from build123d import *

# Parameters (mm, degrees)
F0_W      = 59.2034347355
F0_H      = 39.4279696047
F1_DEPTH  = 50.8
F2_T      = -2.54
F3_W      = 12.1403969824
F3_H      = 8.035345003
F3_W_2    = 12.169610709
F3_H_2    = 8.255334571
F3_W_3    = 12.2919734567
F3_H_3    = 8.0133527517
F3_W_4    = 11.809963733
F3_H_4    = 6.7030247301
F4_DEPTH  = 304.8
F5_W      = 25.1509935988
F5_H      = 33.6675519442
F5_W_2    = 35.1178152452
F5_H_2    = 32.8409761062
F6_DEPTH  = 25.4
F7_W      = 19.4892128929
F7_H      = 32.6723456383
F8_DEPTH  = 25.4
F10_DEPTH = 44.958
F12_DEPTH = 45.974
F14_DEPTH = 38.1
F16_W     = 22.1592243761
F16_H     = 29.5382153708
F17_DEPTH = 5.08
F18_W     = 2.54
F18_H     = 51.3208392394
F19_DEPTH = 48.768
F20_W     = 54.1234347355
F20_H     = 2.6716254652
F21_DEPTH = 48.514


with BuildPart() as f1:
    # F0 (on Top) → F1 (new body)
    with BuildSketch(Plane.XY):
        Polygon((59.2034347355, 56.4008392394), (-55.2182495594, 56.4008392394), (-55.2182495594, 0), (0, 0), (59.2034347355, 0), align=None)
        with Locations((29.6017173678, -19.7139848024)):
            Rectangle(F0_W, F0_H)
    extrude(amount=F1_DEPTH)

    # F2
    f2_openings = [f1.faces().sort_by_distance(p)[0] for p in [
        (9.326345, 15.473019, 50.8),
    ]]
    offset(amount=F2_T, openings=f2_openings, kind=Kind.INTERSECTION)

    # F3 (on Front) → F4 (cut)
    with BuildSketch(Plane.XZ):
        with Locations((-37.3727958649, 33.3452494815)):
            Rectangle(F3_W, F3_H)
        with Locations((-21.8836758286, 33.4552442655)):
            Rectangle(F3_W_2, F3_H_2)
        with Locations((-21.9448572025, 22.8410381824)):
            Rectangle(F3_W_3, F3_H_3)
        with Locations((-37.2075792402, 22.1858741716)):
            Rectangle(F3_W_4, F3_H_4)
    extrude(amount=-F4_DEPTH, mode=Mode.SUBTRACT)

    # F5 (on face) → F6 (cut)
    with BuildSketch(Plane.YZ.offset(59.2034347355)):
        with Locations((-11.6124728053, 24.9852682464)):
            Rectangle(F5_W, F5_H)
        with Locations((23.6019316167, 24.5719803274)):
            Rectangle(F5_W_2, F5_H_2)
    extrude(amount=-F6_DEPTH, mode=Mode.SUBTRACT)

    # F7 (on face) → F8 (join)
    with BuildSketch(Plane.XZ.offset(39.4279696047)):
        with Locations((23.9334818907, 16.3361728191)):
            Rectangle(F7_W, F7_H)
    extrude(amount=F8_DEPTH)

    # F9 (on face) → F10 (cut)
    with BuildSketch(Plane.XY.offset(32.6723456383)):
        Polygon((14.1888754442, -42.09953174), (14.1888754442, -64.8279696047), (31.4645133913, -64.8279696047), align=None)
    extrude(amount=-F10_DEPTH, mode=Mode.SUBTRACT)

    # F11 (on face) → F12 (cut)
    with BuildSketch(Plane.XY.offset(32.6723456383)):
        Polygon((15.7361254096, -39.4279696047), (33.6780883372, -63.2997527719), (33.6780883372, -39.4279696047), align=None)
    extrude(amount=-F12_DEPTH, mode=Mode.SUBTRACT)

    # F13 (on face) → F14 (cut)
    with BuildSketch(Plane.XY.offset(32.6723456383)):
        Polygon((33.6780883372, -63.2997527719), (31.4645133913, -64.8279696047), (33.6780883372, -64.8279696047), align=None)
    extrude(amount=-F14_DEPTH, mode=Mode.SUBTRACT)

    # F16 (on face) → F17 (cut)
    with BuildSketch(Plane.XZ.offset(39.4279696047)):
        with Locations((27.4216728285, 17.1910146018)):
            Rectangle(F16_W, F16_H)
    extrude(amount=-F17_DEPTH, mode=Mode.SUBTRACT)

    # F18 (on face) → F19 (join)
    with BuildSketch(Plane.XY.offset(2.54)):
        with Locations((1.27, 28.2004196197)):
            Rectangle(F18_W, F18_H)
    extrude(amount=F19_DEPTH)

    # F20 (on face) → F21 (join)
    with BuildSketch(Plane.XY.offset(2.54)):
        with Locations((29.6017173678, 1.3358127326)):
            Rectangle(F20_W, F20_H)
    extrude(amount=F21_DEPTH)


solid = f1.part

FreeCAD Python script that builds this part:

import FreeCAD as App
import Part
import Sketcher

V = App.Vector
Q = App.Units.Quantity


def faces_at(feature, points):
    """Names of the faces that lie closest to the given points."""
    faces = feature.Shape.Faces
    near = lambda p: min(range(len(faces)), key=lambda i: faces[i].distToShape(Part.Vertex(*p))[0])
    return sorted({f"Face{near(p) + 1}" for p in points})

doc = App.newDocument("Part")
body = doc.addObject("PartDesign::Body", "Body")

sketch1 = doc.addObject("Sketcher::SketchObject", "Sketch")
body.addObject(sketch1)
sketch1.AttachmentSupport = (doc.XY_Plane, [""])
sketch1.MapMode = "FlatFace"
sketch1.addGeometry([
    Part.LineSegment(V(59.203435, 56.400839, 0), V(-55.21825, 56.400839, 0)),
    Part.LineSegment(V(-55.21825, 56.400839, 0), V(-55.21825, 0, 0)),
    Part.LineSegment(V(-55.21825, 0, 0), V(0, 0, 0)),
    Part.LineSegment(V(0, 0, 0), V(0, -39.42797, 0)),
    Part.LineSegment(V(0, -39.42797, 0), V(59.203435, -39.42797, 0)),
    Part.LineSegment(V(59.203435, -39.42797, 0), V(59.203435, 56.400839, 0)),
], False)
sketch1.addConstraint([
    Sketcher.Constraint("Coincident", 0, 2, 1, 1),
    Sketcher.Constraint("Coincident", 1, 2, 2, 1),
    Sketcher.Constraint("Coincident", 2, 2, 3, 1),
    Sketcher.Constraint("Coincident", 3, 2, 4, 1),
    Sketcher.Constraint("Coincident", 4, 2, 5, 1),
    Sketcher.Constraint("Coincident", 5, 2, 0, 1),
    Sketcher.Constraint("Horizontal", 0),
    Sketcher.Constraint("Vertical", 1),
    Sketcher.Constraint("Horizontal", 2),
    Sketcher.Constraint("Vertical", 3),
    Sketcher.Constraint("Horizontal", 4),
    Sketcher.Constraint("Vertical", 5),
    Sketcher.Constraint("Coincident", 2, 2, -1, 1),
    Sketcher.Constraint("DistanceX", 2, 1, 2, 2, 55.21825),
    Sketcher.Constraint("DistanceY", 1, 2, 1, 1, 56.400839),
    Sketcher.Constraint("DistanceY", 3, 2, 3, 1, 39.42797),
    Sketcher.Constraint("DistanceX", 0, 2, 0, 1, 114.421684),
])
pad1 = doc.addObject("PartDesign::Pad", "Pad")
body.addObject(pad1)
pad1.Profile = sketch1
pad1.Length = Q("2 in")
doc.recompute()

thickness = doc.addObject("PartDesign::Thickness", "Thickness")
body.addObject(thickness)
thickness.Base = (pad1, faces_at(pad1, [(1.993, 8.486, 50.8)]))
thickness.Value = Q("0.1 in")
thickness.Reversed = True
thickness.Join = "Intersection"

sketch2 = doc.addObject("Sketcher::SketchObject", "Sketch001")
body.addObject(sketch2)
sketch2.AttachmentSupport = (doc.XZ_Plane, [""])
sketch2.MapMode = "FlatFace"
sketch2.addGeometry([
    Part.LineSegment(V(-43.442994, 37.362922, 0), V(-43.442994, 29.327577, 0)),
    Part.LineSegment(V(-43.442994, 29.327577, 0), V(-31.302597, 29.327577, 0)),
    Part.LineSegment(V(-31.302597, 29.327577, 0), V(-31.302597, 37.362922, 0)),
    Part.LineSegment(V(-31.302597, 37.362922, 0), V(-43.442994, 37.362922, 0)),
    Part.LineSegment(V(-27.968481, 37.582912, 0), V(-27.968481, 29.327577, 0)),
    Part.LineSegment(V(-27.968481, 29.327577, 0), V(-15.79887, 29.327577, 0)),
    Part.LineSegment(V(-15.79887, 29.327577, 0), V(-15.79887, 37.582912, 0)),
    Part.LineSegment(V(-15.79887, 37.582912, 0), V(-27.968481, 37.582912, 0)),
    Part.LineSegment(V(-28.090844, 26.847715, 0), V(-28.090844, 18.834362, 0)),
    Part.LineSegment(V(-28.090844, 18.834362, 0), V(-15.79887, 18.834362, 0)),
    Part.LineSegment(V(-15.79887, 18.834362, 0), V(-15.79887, 26.847715, 0)),
    Part.LineSegment(V(-15.79887, 26.847715, 0), V(-28.090844, 26.847715, 0)),
    Part.LineSegment(V(-43.112561, 25.537387, 0), V(-43.112561, 18.834362, 0)),
    Part.LineSegment(V(-43.112561, 18.834362, 0), V(-31.302597, 18.834362, 0)),
    Part.LineSegment(V(-31.302597, 18.834362, 0), V(-31.302597, 25.537387, 0)),
    Part.LineSegment(V(-31.302597, 25.537387, 0), V(-43.112561, 25.537387, 0)),
], False)
sketch2.addConstraint([
    Sketcher.Constraint("Coincident", 0, 2, 1, 1),
    Sketcher.Constraint("Coincident", 1, 2, 2, 1),
    Sketcher.Constraint("Coincident", 2, 2, 3, 1),
    Sketcher.Constraint("Coincident", 3, 2, 0, 1),
    Sketcher.Constraint("Coincident", 4, 2, 5, 1),
    Sketcher.Constraint("Coincident", 5, 2, 6, 1),
    Sketcher.Constraint("Coincident", 6, 2, 7, 1),
    Sketcher.Constraint("Coincident", 7, 2, 4, 1),
    Sketcher.Constraint("Coincident", 8, 2, 9, 1),
    Sketcher.Constraint("Coincident", 9, 2, 10, 1),
    Sketcher.Constraint("Coincident", 10, 2, 11, 1),
    Sketcher.Constraint("Coincident", 11, 2, 8, 1),
    Sketcher.Constraint("Coincident", 12, 2, 13, 1),
    Sketcher.Constraint("Coincident", 13, 2, 14, 1),
    Sketcher.Constraint("Coincident", 14, 2, 15, 1),
    Sketcher.Constraint("Coincident", 15, 2, 12, 1),
    Sketcher.Constraint("Vertical", 0),
    Sketcher.Constraint("Horizontal", 1),
    Sketcher.Constraint("Vertical", 2),
    Sketcher.Constraint("Horizontal", 3),
    Sketcher.Constraint("Vertical", 4),
    Sketcher.Constraint("Horizontal", 5),
    Sketcher.Constraint("Vertical", 6),
    Sketcher.Constraint("Horizontal", 7),
    Sketcher.Constraint("Vertical", 8),
    Sketcher.Constraint("Horizontal", 9),
    Sketcher.Constraint("Vertical", 10),
    Sketcher.Constraint("Horizontal", 11),
    Sketcher.Constraint("Vertical", 12),
    Sketcher.Constraint("Horizontal", 13),
    Sketcher.Constraint("Vertical", 14),
    Sketcher.Constraint("Horizontal", 15),
    Sketcher.Constraint("Horizontal", 1, 2, 4, 2),
    Sketcher.Constraint("Horizontal", 9, 2, 12, 2),
    Sketcher.Constraint("Vertical", 6, 2, 9, 2),
    Sketcher.Constraint("Vertical", 2, 2, 13, 2),
    Sketcher.Constraint("DistanceX", 5, 1, 5, 2, 12.169611),
    Sketcher.Constraint("DistanceX", 1, 1, 1, 2, 12.140397),
    Sketcher.Constraint("DistanceX", 9, 1, 9, 2, 12.291973),
    Sketcher.Constraint("DistanceX", 13, 1, 13, 2, 11.809964),
    Sketcher.Constraint("DistanceY", 0, 2, 0, 1, 8.035345),
    Sketcher.Constraint("DistanceY", 4, 2, 4, 1, 8.255335),
    Sketcher.Constraint("DistanceY", 8, 2, 8, 1, 8.013353),
    Sketcher.Constraint("DistanceY", 12, 2, 12, 1, 6.703025),
    Sketcher.Constraint("DistanceY", -1, 1, 2, 2, 37.362922),
    Sketcher.Constraint("DistanceX", 4, 2, -1, 1, 27.968481),
    Sketcher.Constraint("DistanceY", -1, 1, 8, 2, 18.834362),
    Sketcher.Constraint("DistanceX", 12, 2, -1, 1, 43.112561),
])
pocket1 = doc.addObject("PartDesign::Pocket", "Pocket")
body.addObject(pocket1)
pocket1.Profile = sketch2
pocket1.Length = Q("12 in")

sketch3 = doc.addObject("Sketcher::SketchObject", "Sketch002")
body.addObject(sketch3)
sketch3.AttachmentSupport = (doc.YZ_Plane, [""])
sketch3.MapMode = "FlatFace"
sketch3.AttachmentOffset = App.Placement(V(0, 0, 59.203435), App.Rotation())
sketch3.addGeometry([
    Part.LineSegment(V(-24.18797, 41.819044, 0), V(-24.18797, 8.151492, 0)),
    Part.LineSegment(V(-24.18797, 8.151492, 0), V(0.963024, 8.151492, 0)),
    Part.LineSegment(V(0.963024, 8.151492, 0), V(0.963024, 41.819044, 0)),
    Part.LineSegment(V(0.963024, 41.819044, 0), V(-24.18797, 41.819044, 0)),
    Part.LineSegment(V(6.043024, 40.992468, 0), V(6.043024, 8.151492, 0)),
    Part.LineSegment(V(6.043024, 8.151492, 0), V(41.160839, 8.151492, 0)),
    Part.LineSegment(V(41.160839, 8.151492, 0), V(41.160839, 40.992468, 0)),
    Part.LineSegment(V(41.160839, 40.992468, 0), V(6.043024, 40.992468, 0)),
], False)
sketch3.addConstraint([
    Sketcher.Constraint("Coincident", 0, 2, 1, 1),
    Sketcher.Constraint("Coincident", 1, 2, 2, 1),
    Sketcher.Constraint("Coincident", 2, 2, 3, 1),
    Sketcher.Constraint("Coincident", 3, 2, 0, 1),
    Sketcher.Constraint("Coincident", 4, 2, 5, 1),
    Sketcher.Constraint("Coincident", 5, 2, 6, 1),
    Sketcher.Constraint("Coincident", 6, 2, 7, 1),
    Sketcher.Constraint("Coincident", 7, 2, 4, 1),
    Sketcher.Constraint("Vertical", 0),
    Sketcher.Constraint("Horizontal", 1),
    Sketcher.Constraint("Vertical", 2),
    Sketcher.Constraint("Horizontal", 3),
    Sketcher.Constraint("Vertical", 4),
    Sketcher.Constraint("Horizontal", 5),
    Sketcher.Constraint("Vertical", 6),
    Sketcher.Constraint("Horizontal", 7),
    Sketcher.Constraint("Horizontal", 1, 2, 4, 2),
    Sketcher.Constraint("DistanceX", 1, 2, 4, 2, Q("0.2 in")),
    Sketcher.Constraint("DistanceY", 0, 2, 0, 1, 33.667552),
    Sketcher.Constraint("DistanceX", 1, 1, 1, 2, 25.150994),
    Sketcher.Constraint("DistanceX", 5, 1, 5, 2, 35.117815),
    Sketcher.Constraint("DistanceY", 4, 2, 4, 1, 32.840976),
    Sketcher.Constraint("DistanceX", 0, 2, -1, 1, 24.18797),
    Sketcher.Constraint("DistanceY", -1, 1, 6, 2, 40.992468),
])
pocket2 = doc.addObject("PartDesign::Pocket", "Pocket001")
body.addObject(pocket2)
pocket2.Profile = sketch3
pocket2.Length = Q("1 in")

sketch4 = doc.addObject("Sketcher::SketchObject", "Sketch003")
body.addObject(sketch4)
sketch4.AttachmentSupport = (doc.XZ_Plane, [""])
sketch4.MapMode = "FlatFace"
sketch4.AttachmentOffset = App.Placement(V(0, 0, 39.42797), App.Rotation())
sketch4.addGeometry([
    Part.LineSegment(V(14.188875, 32.672346, 0), V(14.188875, 0, 0)),
    Part.LineSegment(V(14.188875, 0, 0), V(33.678088, 0, 0)),
    Part.LineSegment(V(33.678088, 0, 0), V(33.678088, 32.672346, 0)),
    Part.LineSegment(V(33.678088, 32.672346, 0), V(14.188875, 32.672346, 0)),
], False)
sketch4.addConstraint([
    Sketcher.Constraint("Coincident", 0, 2, 1, 1),
    Sketcher.Constraint("Coincident", 1, 2, 2, 1),
    Sketcher.Constraint("Coincident", 2, 2, 3, 1),
    Sketcher.Constraint("Coincident", 3, 2, 0, 1),
    Sketcher.Constraint("Vertical", 0),
    Sketcher.Constraint("Horizontal", 1),
    Sketcher.Constraint("Vertical", 2),
    Sketcher.Constraint("Horizontal", 3),
    Sketcher.Constraint("PointOnObject", 0, 2, -1),
    Sketcher.Constraint("DistanceX", 1, 1, 1, 2, 19.489213),
    Sketcher.Constraint("DistanceY", 0, 2, 0, 1, 32.672346),
    Sketcher.Constraint("DistanceX", -1, 1, 1, 2, 33.678088),
])
pad2 = doc.addObject("PartDesign::Pad", "Pad001")
body.addObject(pad2)
pad2.Profile = sketch4
pad2.Length = Q("1 in")

sketch5 = doc.addObject("Sketcher::SketchObject", "Sketch004")
body.addObject(sketch5)
sketch5.AttachmentSupport = (doc.XY_Plane, [""])
sketch5.MapMode = "FlatFace"
sketch5.AttachmentOffset = App.Placement(V(0, 0, 32.672346), App.Rotation())
sketch5.addGeometry([
    Part.LineSegment(V(14.188875, -42.099532, 0), V(14.188875, -64.82797, 0)),
    Part.LineSegment(V(14.188875, -64.82797, 0), V(31.464513, -64.82797, 0)),
    Part.LineSegment(V(31.464513, -64.82797, 0), V(14.188875, -42.099532, 0)),
], False)
sketch5.addConstraint([
    Sketcher.Constraint("Coincident", 0, 2, 1, 1),
    Sketcher.Constraint("Coincident", 1, 2, 2, 1),
    Sketcher.Constraint("Coincident", 2, 2, 0, 1),
    Sketcher.Constraint("Vertical", 0),
    Sketcher.Constraint("Horizontal", 1),
    Sketcher.Constraint("DistanceX", 1, 1, 1, 2, 17.275638),
    Sketcher.Constraint("DistanceY", 0, 2, 0, 1, 22.728438),
    Sketcher.Constraint("DistanceY", 0, 2, -1, 1, 64.82797),
    Sketcher.Constraint("DistanceX", -1, 1, 0, 2, 14.188875),
])
pocket3 = doc.addObject("PartDesign::Pocket", "Pocket002")
body.addObject(pocket3)
pocket3.Profile = sketch5
pocket3.Length = Q("1.77 in")

sketch6 = doc.addObject("Sketcher::SketchObject", "Sketch005")
body.addObject(sketch6)
sketch6.AttachmentSupport = (doc.XY_Plane, [""])
sketch6.MapMode = "FlatFace"
sketch6.AttachmentOffset = App.Placement(V(0, 0, 32.672346), App.Rotation())
sketch6.addGeometry([
    Part.LineSegment(V(15.736125, -39.42797, 0), V(33.678088, -63.299753, 0)),
    Part.LineSegment(V(33.678088, -63.299753, 0), V(33.678088, -39.42797, 0)),
    Part.LineSegment(V(33.678088, -39.42797, 0), V(15.736125, -39.42797, 0)),
], False)
sketch6.addConstraint([
    Sketcher.Constraint("Coincident", 0, 2, 1, 1),
    Sketcher.Constraint("Coincident", 1, 2, 2, 1),
    Sketcher.Constraint("Coincident", 2, 2, 0, 1),
    Sketcher.Constraint("Vertical", 1),
    Sketcher.Constraint("Horizontal", 2),
    Sketcher.Constraint("Distance", 0, 29.86262),
    Sketcher.Constraint("DistanceX", 2, 2, 2, 1, 17.941963),
    Sketcher.Constraint("DistanceX", -1, 1, 0, 2, 33.678088),
    Sketcher.Constraint("DistanceY", 1, 2, -1, 1, 39.42797),
])
pocket4 = doc.addObject("PartDesign::Pocket", "Pocket003")
body.addObject(pocket4)
pocket4.Profile = sketch6
pocket4.Length = Q("1.81 in")

sketch7 = doc.addObject("Sketcher::SketchObject", "Sketch006")
body.addObject(sketch7)
sketch7.AttachmentSupport = (doc.XY_Plane, [""])
sketch7.MapMode = "FlatFace"
sketch7.AttachmentOffset = App.Placement(V(0, 0, 32.672346), App.Rotation())
sketch7.addGeometry([
    Part.LineSegment(V(33.678088, -63.299753, 0), V(31.464513, -64.82797, 0)),
    Part.LineSegment(V(31.464513, -64.82797, 0), V(33.678088, -64.82797, 0)),
    Part.LineSegment(V(33.678088, -64.82797, 0), V(33.678088, -63.299753, 0)),
], False)
sketch7.addConstraint([
    Sketcher.Constraint("Coincident", 0, 2, 1, 1),
    Sketcher.Constraint("Coincident", 1, 2, 2, 1),
    Sketcher.Constraint("Coincident", 2, 2, 0, 1),
    Sketcher.Constraint("Horizontal", 1),
    Sketcher.Constraint("Vertical", 2),
    Sketcher.Constraint("Distance", 0, Q("0.1059001 in")),
    Sketcher.Constraint("DistanceX", 1, 1, 1, 2, 2.213575),
    Sketcher.Constraint("DistanceY", 0, 2, -1, 1, 64.82797),
    Sketcher.Constraint("DistanceX", -1, 1, 1, 2, 33.678088),
])
pocket5 = doc.addObject("PartDesign::Pocket", "Pocket004")
body.addObject(pocket5)
pocket5.Profile = sketch7
pocket5.Length = Q("1.5 in")

sketch8 = doc.addObject("Sketcher::SketchObject", "Sketch007")
body.addObject(sketch8)
sketch8.AttachmentSupport = (doc.XZ_Plane, [""])
sketch8.MapMode = "FlatFace"
sketch8.AttachmentOffset = App.Placement(V(0, 0, 39.42797), App.Rotation())
sketch8.addGeometry([
    Part.LineSegment(V(16.342061, 31.960122, 0), V(16.342061, 2.421907, 0)),
    Part.LineSegment(V(16.342061, 2.421907, 0), V(38.501285, 2.421907, 0)),
    Part.LineSegment(V(38.501285, 2.421907, 0), V(38.501285, 31.960122, 0)),
    Part.LineSegment(V(38.501285, 31.960122, 0), V(16.342061, 31.960122, 0)),
], False)
sketch8.addConstraint([
    Sketcher.Constraint("Coincident", 0, 2, 1, 1),
    Sketcher.Constraint("Coincident", 1, 2, 2, 1),
    Sketcher.Constraint("Coincident", 2, 2, 3, 1),
    Sketcher.Constraint("Coincident", 3, 2, 0, 1),
    Sketcher.Constraint("Vertical", 0),
    Sketcher.Constraint("Horizontal", 1),
    Sketcher.Constraint("Vertical", 2),
    Sketcher.Constraint("Horizontal", 3),
    Sketcher.Constraint("DistanceX", 1, 1, 1, 2, 22.159224),
    Sketcher.Constraint("DistanceY", 0, 2, 0, 1, 29.538215),
    Sketcher.Constraint("DistanceX", -1, 1, 0, 2, 16.342061),
    Sketcher.Constraint("DistanceY", -1, 1, 0, 2, 2.421907),
])
pocket6 = doc.addObject("PartDesign::Pocket", "Pocket005")
body.addObject(pocket6)
pocket6.Profile = sketch8
pocket6.Length = Q("0.2 in")

sketch9 = doc.addObject("Sketcher::SketchObject", "Sketch008")
body.addObject(sketch9)
sketch9.AttachmentSupport = (doc.XY_Plane, [""])
sketch9.MapMode = "FlatFace"
sketch9.AttachmentOffset = App.Placement(V(0, 0, 0.1 * 25.4), App.Rotation())
sketch9.addGeometry([
    Part.LineSegment(V(0, 53.860839, 0), V(0, 2.54, 0)),
    Part.LineSegment(V(0, 2.54, 0), V(2.54, 2.54, 0)),
    Part.LineSegment(V(2.54, 2.54, 0), V(2.54, 53.860839, 0)),
    Part.LineSegment(V(2.54, 53.860839, 0), V(0, 53.860839, 0)),
], False)
sketch9.addConstraint([
    Sketcher.Constraint("Coincident", 0, 2, 1, 1),
    Sketcher.Constraint("Coincident", 1, 2, 2, 1),
    Sketcher.Constraint("Coincident", 2, 2, 3, 1),
    Sketcher.Constraint("Coincident", 3, 2, 0, 1),
    Sketcher.Constraint("Vertical", 0),
    Sketcher.Constraint("Horizontal", 1),
    Sketcher.Constraint("Vertical", 2),
    Sketcher.Constraint("Horizontal", 3),
    Sketcher.Constraint("PointOnObject", 0, 2, -2),
    Sketcher.Constraint("DistanceX", 1, 1, 1, 2, Q("0.1 in")),
    Sketcher.Constraint("DistanceY", -1, 1, 0, 2, Q("0.1 in")),
    Sketcher.Constraint("DistanceY", 0, 2, 0, 1, 51.320839),
])
pad3 = doc.addObject("PartDesign::Pad", "Pad002")
body.addObject(pad3)
pad3.Profile = sketch9
pad3.Length = Q("1.92 in")

sketch10 = doc.addObject("Sketcher::SketchObject", "Sketch009")
body.addObject(sketch10)
sketch10.AttachmentSupport = (doc.XY_Plane, [""])
sketch10.MapMode = "FlatFace"
sketch10.AttachmentOffset = App.Placement(V(0, 0, 0.1 * 25.4), App.Rotation())
sketch10.addGeometry([
    Part.LineSegment(V(2.54, 2.671625, 0), V(2.54, 0, 0)),
    Part.LineSegment(V(2.54, 0, 0), V(56.663435, 0, 0)),
    Part.LineSegment(V(56.663435, 0, 0), V(56.663435, 2.671625, 0)),
    Part.LineSegment(V(56.663435, 2.671625, 0), V(2.54, 2.671625, 0)),
], False)
sketch10.addConstraint([
    Sketcher.Constraint("Coincident", 0, 2, 1, 1),
    Sketcher.Constraint("Coincident", 1, 2, 2, 1),
    Sketcher.Constraint("Coincident", 2, 2, 3, 1),
    Sketcher.Constraint("Coincident", 3, 2, 0, 1),
    Sketcher.Constraint("Vertical", 0),
    Sketcher.Constraint("Horizontal", 1),
    Sketcher.Constraint("Vertical", 2),
    Sketcher.Constraint("Horizontal", 3),
    Sketcher.Constraint("PointOnObject", 0, 2, -1),
    Sketcher.Constraint("DistanceX", -1, 1, 0, 2, Q("0.1 in")),
    Sketcher.Constraint("DistanceX", 1, 1, 1, 2, 54.123435),
    Sketcher.Constraint("DistanceY", 0, 2, 0, 1, 2.671625),
])
pad4 = doc.addObject("PartDesign::Pad", "Pad003")
body.addObject(pad4)
pad4.Profile = sketch10
pad4.Length = Q("1.91 in")

doc.recompute()
